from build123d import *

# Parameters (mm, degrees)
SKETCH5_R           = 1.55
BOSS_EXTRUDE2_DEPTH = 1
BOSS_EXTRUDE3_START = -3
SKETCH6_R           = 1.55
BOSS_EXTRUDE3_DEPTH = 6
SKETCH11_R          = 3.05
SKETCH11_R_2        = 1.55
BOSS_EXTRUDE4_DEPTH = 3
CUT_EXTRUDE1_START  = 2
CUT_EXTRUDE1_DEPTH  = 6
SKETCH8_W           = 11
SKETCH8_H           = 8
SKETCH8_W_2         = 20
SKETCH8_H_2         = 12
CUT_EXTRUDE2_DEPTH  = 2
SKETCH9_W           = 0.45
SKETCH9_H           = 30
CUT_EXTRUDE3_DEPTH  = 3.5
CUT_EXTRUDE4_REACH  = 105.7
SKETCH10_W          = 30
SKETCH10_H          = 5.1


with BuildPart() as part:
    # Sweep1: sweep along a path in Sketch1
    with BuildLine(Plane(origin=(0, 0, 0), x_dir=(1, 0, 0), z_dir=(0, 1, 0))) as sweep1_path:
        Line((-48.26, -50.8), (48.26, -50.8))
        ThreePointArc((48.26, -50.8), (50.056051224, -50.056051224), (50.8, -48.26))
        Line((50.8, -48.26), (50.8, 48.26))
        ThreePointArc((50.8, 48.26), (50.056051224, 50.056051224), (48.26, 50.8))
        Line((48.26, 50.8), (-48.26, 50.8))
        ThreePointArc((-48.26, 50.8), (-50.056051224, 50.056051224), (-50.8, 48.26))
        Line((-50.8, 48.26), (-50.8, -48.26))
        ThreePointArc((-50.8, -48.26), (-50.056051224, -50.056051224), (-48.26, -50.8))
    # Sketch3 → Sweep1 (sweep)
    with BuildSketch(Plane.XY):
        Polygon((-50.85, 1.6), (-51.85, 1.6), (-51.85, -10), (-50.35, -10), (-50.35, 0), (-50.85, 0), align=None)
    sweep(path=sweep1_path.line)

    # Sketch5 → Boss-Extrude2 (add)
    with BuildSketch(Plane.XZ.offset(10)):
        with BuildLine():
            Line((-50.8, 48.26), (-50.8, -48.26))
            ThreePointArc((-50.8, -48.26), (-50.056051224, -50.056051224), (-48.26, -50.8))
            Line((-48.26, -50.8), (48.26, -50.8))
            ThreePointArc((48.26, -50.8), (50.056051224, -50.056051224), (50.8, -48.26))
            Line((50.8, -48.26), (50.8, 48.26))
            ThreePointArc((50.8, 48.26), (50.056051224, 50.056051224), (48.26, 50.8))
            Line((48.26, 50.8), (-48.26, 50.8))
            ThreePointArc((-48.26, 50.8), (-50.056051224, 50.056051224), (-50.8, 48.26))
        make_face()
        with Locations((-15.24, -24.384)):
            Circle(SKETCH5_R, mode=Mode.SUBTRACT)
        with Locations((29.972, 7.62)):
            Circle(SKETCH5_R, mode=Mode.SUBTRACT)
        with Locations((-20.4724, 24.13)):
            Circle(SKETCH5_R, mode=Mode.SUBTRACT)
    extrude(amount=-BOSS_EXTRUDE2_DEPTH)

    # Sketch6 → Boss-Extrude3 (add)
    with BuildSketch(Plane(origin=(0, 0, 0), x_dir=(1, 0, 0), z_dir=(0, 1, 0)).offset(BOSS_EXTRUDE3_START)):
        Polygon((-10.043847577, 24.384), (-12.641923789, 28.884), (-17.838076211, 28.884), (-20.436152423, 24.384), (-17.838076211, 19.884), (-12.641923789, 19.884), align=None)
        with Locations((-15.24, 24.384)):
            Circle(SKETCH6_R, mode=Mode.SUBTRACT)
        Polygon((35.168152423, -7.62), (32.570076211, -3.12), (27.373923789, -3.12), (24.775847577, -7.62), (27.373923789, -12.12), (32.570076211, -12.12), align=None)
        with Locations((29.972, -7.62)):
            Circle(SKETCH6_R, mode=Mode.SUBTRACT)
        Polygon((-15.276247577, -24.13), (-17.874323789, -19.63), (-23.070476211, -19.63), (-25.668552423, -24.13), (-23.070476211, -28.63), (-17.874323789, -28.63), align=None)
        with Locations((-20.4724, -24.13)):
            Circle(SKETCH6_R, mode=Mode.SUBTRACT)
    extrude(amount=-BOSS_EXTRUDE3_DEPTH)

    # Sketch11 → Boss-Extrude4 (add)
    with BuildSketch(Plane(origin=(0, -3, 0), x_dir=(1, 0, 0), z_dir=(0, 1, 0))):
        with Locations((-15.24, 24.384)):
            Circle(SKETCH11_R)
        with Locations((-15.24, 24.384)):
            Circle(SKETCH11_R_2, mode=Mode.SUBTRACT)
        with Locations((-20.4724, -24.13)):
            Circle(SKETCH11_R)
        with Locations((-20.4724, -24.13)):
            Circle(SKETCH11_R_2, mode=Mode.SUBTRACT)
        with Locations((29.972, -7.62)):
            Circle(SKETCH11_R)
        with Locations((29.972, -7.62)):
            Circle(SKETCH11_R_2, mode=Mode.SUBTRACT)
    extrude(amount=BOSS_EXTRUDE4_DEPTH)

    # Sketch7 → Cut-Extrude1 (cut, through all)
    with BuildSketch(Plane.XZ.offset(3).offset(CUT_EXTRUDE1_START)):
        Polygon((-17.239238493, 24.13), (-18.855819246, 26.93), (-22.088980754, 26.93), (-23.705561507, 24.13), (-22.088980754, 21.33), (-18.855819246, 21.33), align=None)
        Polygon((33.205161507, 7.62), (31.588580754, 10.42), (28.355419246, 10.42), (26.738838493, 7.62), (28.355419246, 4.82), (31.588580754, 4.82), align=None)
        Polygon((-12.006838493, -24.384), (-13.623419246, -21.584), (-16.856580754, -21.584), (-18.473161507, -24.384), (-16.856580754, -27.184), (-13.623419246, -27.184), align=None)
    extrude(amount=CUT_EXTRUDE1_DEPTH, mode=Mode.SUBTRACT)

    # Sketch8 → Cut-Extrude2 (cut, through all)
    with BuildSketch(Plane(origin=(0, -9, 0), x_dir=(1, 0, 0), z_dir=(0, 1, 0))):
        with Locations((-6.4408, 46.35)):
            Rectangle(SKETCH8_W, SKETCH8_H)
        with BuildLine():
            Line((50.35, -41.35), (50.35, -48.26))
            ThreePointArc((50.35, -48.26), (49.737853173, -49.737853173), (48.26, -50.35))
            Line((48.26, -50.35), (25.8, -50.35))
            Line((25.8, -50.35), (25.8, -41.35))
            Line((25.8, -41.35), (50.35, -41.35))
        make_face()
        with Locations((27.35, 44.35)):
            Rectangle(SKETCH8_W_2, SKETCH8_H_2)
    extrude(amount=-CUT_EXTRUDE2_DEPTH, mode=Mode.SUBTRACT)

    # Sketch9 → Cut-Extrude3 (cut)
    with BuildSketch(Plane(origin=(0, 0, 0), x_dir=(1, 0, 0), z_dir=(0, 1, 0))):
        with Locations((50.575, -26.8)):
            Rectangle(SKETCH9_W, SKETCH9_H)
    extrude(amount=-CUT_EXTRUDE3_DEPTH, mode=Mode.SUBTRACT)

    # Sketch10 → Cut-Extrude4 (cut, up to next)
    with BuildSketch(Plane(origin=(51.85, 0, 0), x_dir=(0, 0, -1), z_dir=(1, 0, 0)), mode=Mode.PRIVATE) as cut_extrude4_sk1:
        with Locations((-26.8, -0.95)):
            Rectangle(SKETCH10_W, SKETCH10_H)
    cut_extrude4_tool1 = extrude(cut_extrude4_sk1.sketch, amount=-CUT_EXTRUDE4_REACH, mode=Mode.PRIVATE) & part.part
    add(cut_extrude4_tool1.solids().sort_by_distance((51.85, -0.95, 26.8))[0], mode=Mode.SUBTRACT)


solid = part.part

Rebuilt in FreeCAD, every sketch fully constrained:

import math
import FreeCAD as App
import Part
import Sketcher
Q = App.Units.Quantity


def add_polygon(sketch, points):
    """Adds a closed chain of lines whose ends are joined by coincident constraints."""
    first, n = sketch.GeometryCount, len(points)
    for a, b in zip(points, points[1:] + points[:1]):
        sketch.addGeometry(Part.LineSegment(App.Vector(*a, 0), App.Vector(*b, 0)), False)
    for i in range(n):
        sketch.addConstraint(Sketcher.Constraint("Coincident", first + i, 2, first + (i + 1) % n, 1))

doc = App.newDocument("Part")
body = doc.addObject("PartDesign::Body", "Body")

# Sketch on XY plane
sketch1 = body.newObject("Sketcher::SketchObject", "Sketch")
sketch1.AttachmentSupport = (doc.getObject("XY_Plane"), [""])
sketch1.MapMode = "FlatFace"
add_polygon(sketch1, [(-50.9, 1.6), (-51.9, 1.6), (-51.9, -10), (-50.4, -10), (-50.4, 0), (-50.9, 0)])  # lines 0-5
sketch1.addConstraint([
    Sketcher.Constraint("Horizontal", 0),
    Sketcher.Constraint("Vertical", 1),
    Sketcher.Constraint("Horizontal", 2),
    Sketcher.Constraint("Vertical", 3),
    Sketcher.Constraint("Horizontal", 4),
    Sketcher.Constraint("Vertical", 5),
    Sketcher.Constraint("PointOnObject", 3, 2, -1),
    Sketcher.Constraint("DistanceX", 0, 2, 0, 1, 1.0),
    Sketcher.Constraint("DistanceY", 3, 1, 3, 2, 10.0),
    Sketcher.Constraint("DistanceX", 2, 1, 2, 2, 1.5),
    Sketcher.Constraint("DistanceY", 1, 2, 1, 1, 11.6),
    Sketcher.Constraint("DistanceX", 0, 2, -1, 1, 51.85),
])

# Sketch on XZ plane
sketch2 = body.newObject("Sketcher::SketchObject", "Sketch001")
sketch2.AttachmentSupport = (doc.getObject("XZ_Plane"), [""])
sketch2.MapMode = "FlatFace"
sketch2.addGeometry([
    Part.LineSegment(App.Vector(-48.3, 50.8, 0), App.Vector(48.3, 50.8, 0)),  # 0
    Part.ArcOfCircle(Part.Circle(App.Vector(48.3, 48.3, 0), App.Vector(0, 0, 1), 2.5), math.radians(0), math.radians(90)),  # 1
    Part.LineSegment(App.Vector(50.8, 48.3, 0), App.Vector(50.8, -48.3, 0)),  # 2
    Part.ArcOfCircle(Part.Circle(App.Vector(48.3, -48.3, 0), App.Vector(0, 0, 1), 2.5), math.radians(-90), math.radians(0)),  # 3
    Part.LineSegment(App.Vector(48.3, -50.8, 0), App.Vector(-48.3, -50.8, 0)),  # 4
    Part.ArcOfCircle(Part.Circle(App.Vector(-48.3, -48.3, 0), App.Vector(0, 0, 1), 2.5), math.radians(-180), math.radians(-90)),  # 5
    Part.LineSegment(App.Vector(-50.8, -48.3, 0), App.Vector(-50.8, 48.3, 0)),  # 6
    Part.ArcOfCircle(Part.Circle(App.Vector(-48.3, 48.3, 0), App.Vector(0, 0, 1), 2.5), math.radians(90), math.radians(180)),  # 7
], False)
sketch2.addConstraint([
    Sketcher.Constraint("Tangent", 0, 2, 1, 2),
    Sketcher.Constraint("Tangent", 1, 1, 2, 1),
    Sketcher.Constraint("Tangent", 2, 2, 3, 2),
    Sketcher.Constraint("Tangent", 3, 1, 4, 1),
    Sketcher.Constraint("Tangent", 4, 2, 5, 2),
    Sketcher.Constraint("Tangent", 5, 1, 6, 1),
    Sketcher.Constraint("Tangent", 6, 2, 7, 2),
    Sketcher.Constraint("Tangent", 7, 1, 0, 1),
    Sketcher.Constraint("Horizontal", 0),
    Sketcher.Constraint("Vertical", 2),
    Sketcher.Constraint("Horizontal", 4),
    Sketcher.Constraint("Vertical", 6),
    Sketcher.Constraint("Equal", 1, 3),
    Sketcher.Constraint("Equal", 3, 5),
    Sketcher.Constraint("Equal", 5, 7),
    Sketcher.Constraint("Symmetric", 1, 3, 5, 3, -1, 1),
    Sketcher.Constraint("Equal", 4, 2),
    Sketcher.Constraint("Radius", 1, 2.54),
    Sketcher.Constraint("DistanceX", 0, 1, 0, 2, 96.52),
])
doc.recompute()

additivepipe = body.newObject("PartDesign::AdditivePipe", "AdditivePipe")
additivepipe.Profile = sketch1
additivepipe.Spine = (sketch2, ["Edge1", "Edge2", "Edge3", "Edge4", "Edge5", "Edge6", "Edge7", "Edge8"])

# Sketch on XZ plane
sketch3 = body.newObject("Sketcher::SketchObject", "Sketch002")
sketch3.AttachmentSupport = (doc.getObject("XZ_Plane"), [""])
sketch3.MapMode = "FlatFace"
sketch3.AttachmentOffset = App.Placement(App.Vector(0, 0, 10), App.Rotation())
sketch3.addGeometry([
    Part.LineSegment(App.Vector(-50.8, 48.3, 0), App.Vector(-50.8, -48.3, 0)),  # 0
    Part.ArcOfCircle(Part.Circle(App.Vector(-48.3, -48.3, 0), App.Vector(0, 0, 1), 2.5), math.radians(-180), math.radians(-90)),  # 1
    Part.LineSegment(App.Vector(-48.3, -50.8, 0), App.Vector(48.3, -50.8, 0)),  # 2
    Part.ArcOfCircle(Part.Circle(App.Vector(48.3, -48.3, 0), App.Vector(0, 0, 1), 2.5), math.radians(-90), math.radians(0)),  # 3
    Part.LineSegment(App.Vector(50.8, -48.3, 0), App.Vector(50.8, 48.3, 0)),  # 4
    Part.ArcOfCircle(Part.Circle(App.Vector(48.3, 48.3, 0), App.Vector(0, 0, 1), 2.5), math.radians(0), math.radians(90)),  # 5
    Part.LineSegment(App.Vector(48.3, 50.8, 0), App.Vector(-48.3, 50.8, 0)),  # 6
    Part.ArcOfCircle(Part.Circle(App.Vector(-48.3, 48.3, 0), App.Vector(0, 0, 1), 2.5), math.radians(90), math.radians(180)),  # 7
    Part.Circle(App.Vector(-15.2, -24.4, 0), App.Vector(0, 0, 1), 1.6),  # 8
    Part.Circle(App.Vector(-20.5, 24.1, 0), App.Vector(0, 0, 1), 1.6),  # 9
    Part.Circle(App.Vector(30, 7.6, 0), App.Vector(0, 0, 1), 1.6),  # 10
], False)
sketch3.addConstraint([
    Sketcher.Constraint("Tangent", 0, 2, 1, 1),
    Sketcher.Constraint("Tangent", 1, 2, 2, 1),
    Sketcher.Constraint("Tangent", 2, 2, 3, 1),
    Sketcher.Constraint("Tangent", 3, 2, 4, 1),
    Sketcher.Constraint("Tangent", 4, 2, 5, 1),
    Sketcher.Constraint("Tangent", 5, 2, 6, 1),
    Sketcher.Constraint("Tangent", 6, 2, 7, 1),
    Sketcher.Constraint("Tangent", 7, 2, 0, 1),
    Sketcher.Constraint("Vertical", 0),
    Sketcher.Constraint("Horizontal", 2),
    Sketcher.Constraint("Vertical", 4),
    Sketcher.Constraint("Horizontal", 6),
    Sketcher.Constraint("Equal", 1, 3),
    Sketcher.Constraint("Equal", 3, 5),
    Sketcher.Constraint("Equal", 5, 7),
    Sketcher.Constraint("Equal", 8, 9),
    Sketcher.Constraint("Equal", 9, 10),
    Sketcher.Constraint("Symmetric", 1, 3, 5, 3, -1, 1),
    Sketcher.Constraint("Equal", 6, 0),
    Sketcher.Constraint("Diameter", 8, 3.1),
    Sketcher.Constraint("Radius", 1, 2.54),
    Sketcher.Constraint("DistanceX", 2, 1, 2, 2, 96.52),
    Sketcher.Constraint("DistanceX", 8, 3, 3, 3, 63.5),
    Sketcher.Constraint("DistanceY", -1, 1, 9, 3, 24.13),
    Sketcher.Constraint("DistanceY", -1, 1, 10, 3, 7.62),
    Sketcher.Constraint("DistanceY", 8, 3, -1, 1, 24.384),
    Sketcher.Constraint("DistanceX", -1, 1, 10, 3, 29.972),
    Sketcher.Constraint("DistanceX", 9, 3, -1, 1, 20.4724),
])
pad1 = body.newObject("PartDesign::Pad", "Pad")
pad1.Profile = sketch3
pad1.Length = 1
pad1.Reversed = True

# Sketch on XZ plane
sketch4 = body.newObject("Sketcher::SketchObject", "Sketch003")
sketch4.AttachmentSupport = (doc.getObject("XZ_Plane"), [""])
sketch4.MapMode = "FlatFace"
sketch4.AttachmentOffset = App.Placement(App.Vector(0, 0, 3), App.Rotation())
add_polygon(sketch4, [(-10, -24.4), (-12.6, -28.9), (-17.8, -28.9), (-20.4, -24.4), (-17.8, -19.9), (-12.6, -19.9)])  # lines 0-5
sketch4.addGeometry(Part.Circle(App.Vector(-15.2, -24.4, 0), App.Vector(0, 0, 1), 1.6), False)  # 6
add_polygon(sketch4, [(35.2, 7.6), (32.6, 3.1), (27.4, 3.1), (24.8, 7.6), (27.4, 12.1), (32.6, 12.1)])  # lines 7-12
sketch4.addGeometry(Part.Circle(App.Vector(30, 7.6, 0), App.Vector(0, 0, 1), 1.6), False)  # 13
add_polygon(sketch4, [(-15.3, 24.1), (-17.9, 19.6), (-23.1, 19.6), (-25.7, 24.1), (-23.1, 28.6), (-17.9, 28.6)])  # lines 14-19
sketch4.addGeometry(Part.Circle(App.Vector(-20.5, 24.1, 0), App.Vector(0, 0, 1), 1.6), False)  # 20
sketch4.addConstraint([
    Sketcher.Constraint("Horizontal", 1),
    Sketcher.Constraint("Horizontal", 4),
    Sketcher.Constraint("Horizontal", 8),
    Sketcher.Constraint("Horizontal", 11),
    Sketcher.Constraint("Horizontal", 15),
    Sketcher.Constraint("Horizontal", 18),
    Sketcher.Constraint("Equal", 6, 13),
    Sketcher.Constraint("Equal", 13, 20),
    Sketcher.Constraint("Parallel", 0, 3),
    Sketcher.Constraint("Parallel", 2, 5),
    Sketcher.Constraint("Parallel", 3, 7),
    Sketcher.Constraint("Parallel", 5, 9),
    Sketcher.Constraint("Parallel", 7, 10),
    Sketcher.Constraint("Parallel", 9, 12),
    Sketcher.Constraint("Parallel", 10, 14),
    Sketcher.Constraint("Parallel", 12, 16),
    Sketcher.Constraint("Parallel", 14, 17),
    Sketcher.Constraint("Parallel", 16, 19),
    Sketcher.Constraint("Horizontal", 6, 3, 2, 2),
    Sketcher.Constraint("Horizontal", 2, 2, 5, 2),
    Sketcher.Constraint("Horizontal", 13, 3, 9, 2),
    Sketcher.Constraint("Horizontal", 9, 2, 12, 2),
    Sketcher.Constraint("Horizontal", 20, 3, 16, 2),
    Sketcher.Constraint("Horizontal", 16, 2, 19, 2),
    Sketcher.Constraint("Vertical", 1, 2, 3, 2),
    Sketcher.Constraint("Vertical", 0, 2, 4, 2),
    Sketcher.Constraint("Vertical", 8, 2, 10, 2),
    Sketcher.Constraint("Vertical", 15, 2, 17, 2),
    Sketcher.Constraint("Equal", 4, 8),
    Sketcher.Constraint("Equal", 11, 15),
    Sketcher.Constraint("Equal", 5, 7),
    Sketcher.Constraint("Equal", 12, 14),
    Sketcher.Constraint("Diameter", 6, 3.1),
    Sketcher.Constraint("Angle", 0, Q("-120 deg")),
    Sketcher.Constraint("DistanceY", 1, 2, 3, 2, 9.0),
    Sketcher.Constraint("DistanceX", 6, 3, -1, 1, 15.24),
    Sketcher.Constraint("DistanceY", -1, 1, 13, 3, 7.62),
    Sketcher.Constraint("DistanceY", -1, 1, 20, 3, 24.13),
    Sketcher.Constraint("DistanceY", 6, 3, -1, 1, 24.384),
    Sketcher.Constraint("DistanceX", -1, 1, 13, 3, 29.972),
    Sketcher.Constraint("DistanceX", 4, 2, 7, 2, 45.212),
    Sketcher.Constraint("DistanceX", 20, 3, -1, 1, 20.4724),
    Sketcher.Constraint("DistanceX", 14, 2, 4, 2, 5.2324),
    Sketcher.Constraint("DistanceX", 1, 2, 1, 1, 5.196152),
    Sketcher.Constraint("DistanceX", 0, 2, -1, 1, 12.641924),
])
pad2 = body.newObject("PartDesign::Pad", "Pad001")
pad2.Profile = sketch4
pad2.Length = 6

# Sketch on XZ plane
sketch5 = body.newObject("Sketcher::SketchObject", "Sketch004")
sketch5.AttachmentSupport = (doc.getObject("XZ_Plane"), [""])
sketch5.MapMode = "FlatFace"
sketch5.AttachmentOffset = App.Placement(App.Vector(0, 0, 3), App.Rotation())
sketch5.addGeometry([
    Part.Circle(App.Vector(-15.2, -24.4, 0), App.Vector(0, 0, 1), 3),  # 0
    Part.Circle(App.Vector(-15.2, -24.4, 0), App.Vector(0, 0, 1), 1.6),  # 1
    Part.Circle(App.Vector(-20.5, 24.1, 0), App.Vector(0, 0, 1), 3),  # 2
    Part.Circle(App.Vector(-20.5, 24.1, 0), App.Vector(0, 0, 1), 1.6),  # 3
    Part.Circle(App.Vector(30, 7.6, 0), App.Vector(0, 0, 1), 3),  # 4
    Part.Circle(App.Vector(30, 7.6, 0), App.Vector(0, 0, 1), 1.6),  # 5
], False)
sketch5.addConstraint([
    Sketcher.Constraint("Coincident", 1, 3, 0, 3),
    Sketcher.Constraint("Coincident", 3, 3, 2, 3),
    Sketcher.Constraint("Coincident", 5, 3, 4, 3),
    Sketcher.Constraint("Equal", 0, 2),
    Sketcher.Constraint("Equal", 1, 3),
    Sketcher.Constraint("Equal", 2, 4),
    Sketcher.Constraint("Equal", 3, 5),
    Sketcher.Constraint("Diameter", 0, 6.1),
    Sketcher.Constraint("Diameter", 1, 3.1),
    Sketcher.Constraint("DistanceX", 0, 3, -1, 1, 15.24),
    Sketcher.Constraint("DistanceY", -1, 1, 2, 3, 24.13),
    Sketcher.Constraint("DistanceY", -1, 1, 4, 3, 7.62),
    Sketcher.Constraint("DistanceY", 0, 3, -1, 1, 24.384),
    Sketcher.Constraint("DistanceX", -1, 1, 4, 3, 29.972),
    Sketcher.Constraint("DistanceX", 2, 3, -1, 1, 20.4724),
])
pad3 = body.newObject("PartDesign::Pad", "Pad002")
pad3.Profile = sketch5
pad3.Length = 3
pad3.Reversed = True

# Sketch on XZ plane
sketch6 = body.newObject("Sketcher::SketchObject", "Sketch005")
sketch6.AttachmentSupport = (doc.getObject("XZ_Plane"), [""])
sketch6.MapMode = "FlatFace"
sketch6.AttachmentOffset = App.Placement(App.Vector(0, 0, 5), App.Rotation())
add_polygon(sketch6, [(-17.2, 24.1), (-18.9, 26.9), (-22.1, 26.9), (-23.7, 24.1), (-22.1, 21.3), (-18.9, 21.3)])  # lines 0-5
add_polygon(sketch6, [(33.2, 7.6), (31.6, 10.4), (28.4, 10.4), (26.7, 7.6), (28.4, 4.8), (31.6, 4.8)])  # lines 6-11
add_polygon(sketch6, [(-12, -24.4), (-13.6, -21.6), (-16.9, -21.6), (-18.5, -24.4), (-16.9, -27.2), (-13.6, -27.2)])  # lines 12-17
sketch6.addConstraint([
    Sketcher.Constraint("Horizontal", 1),
    Sketcher.Constraint("Horizontal", 4),
    Sketcher.Constraint("Horizontal", 7),
    Sketcher.Constraint("Horizontal", 10),
    Sketcher.Constraint("Horizontal", 13),
    Sketcher.Constraint("Horizontal", 16),
    Sketcher.Constraint("Parallel", 0, 3),
    Sketcher.Constraint("Parallel", 2, 5),
    Sketcher.Constraint("Parallel", 3, 6),
    Sketcher.Constraint("Parallel", 5, 8),
    Sketcher.Constraint("Parallel", 6, 9),
    Sketcher.Constraint("Parallel", 8, 11),
    Sketcher.Constraint("Parallel", 9, 12),
    Sketcher.Constraint("Parallel", 11, 14),
    Sketcher.Constraint("Parallel", 12, 15),
    Sketcher.Constraint("Parallel", 14, 17),
    Sketcher.Constraint("Horizontal", 2, 2, 5, 2),
    Sketcher.Constraint("Horizontal", 8, 2, 11, 2),
    Sketcher.Constraint("Horizontal", 14, 2, 17, 2),
    Sketcher.Constraint("Vertical", 1, 2, 3, 2),
    Sketcher.Constraint("Vertical", 0, 2, 4, 2),
    Sketcher.Constraint("Vertical", 7, 2, 9, 2),
    Sketcher.Constraint("Vertical", 13, 2, 15, 2),
    Sketcher.Constraint("Equal", 4, 7),
    Sketcher.Constraint("Equal", 10, 13),
    Sketcher.Constraint("Equal", 5, 6),
    Sketcher.Constraint("Equal", 11, 12),
    Sketcher.Constraint("Angle", 0, Q("120 deg")),
    Sketcher.Constraint("DistanceY", 2, 2, 1, 2, 2.8),
    Sketcher.Constraint("DistanceY", -1, 1, 0, 2, 26.93),
    Sketcher.Constraint("DistanceY", -1, 1, 6, 2, 10.42),
    Sketcher.Constraint("DistanceY", 12, 2, -1, 1, 21.584),
    Sketcher.Constraint("DistanceX", 1, 2, 1, 1, 3.233162),
    Sketcher.Constraint("DistanceX", 4, 2, 6, 2, 50.4444),
    Sketcher.Constraint("DistanceX", 4, 2, 12, 2, 5.2324),
    Sketcher.Constraint("DistanceX", 0, 2, -1, 1, 18.855819),
])
pocket1 = body.newObject("PartDesign::Pocket", "Pocket")
pocket1.Profile = sketch6
pocket1.Type = "ThroughAll"
pocket1.Reversed = True

# Sketch on XZ plane
sketch7 = body.newObject("Sketcher::SketchObject", "Sketch006")
sketch7.AttachmentSupport = (doc.getObject("XZ_Plane"), [""])
sketch7.MapMode = "FlatFace"
sketch7.AttachmentOffset = App.Placement(App.Vector(0, 0, 9), App.Rotation())
add_polygon(sketch7, [(-11.9, -50.4), (-11.9, -42.4), (-0.9, -42.4), (-0.9, -50.4)])  # lines 0-3
sketch7.addGeometry(Part.LineSegment(App.Vector(50.4, 48.3, 0), App.Vector(50.4, 41.4, 0)), False)  # 4
sketch7.addGeometry(Part.LineSegment(App.Vector(50.4, 41.4, 0), App.Vector(25.8, 41.4, 0)), False)  # 5
sketch7.addGeometry(Part.LineSegment(App.Vector(25.8, 41.4, 0), App.Vector(25.8, 50.4, 0)), False)  # 6
sketch7.addGeometry(Part.LineSegment(App.Vector(25.8, 50.4, 0), App.Vector(48.3, 50.4, 0)), False)  # 7
sketch7.addGeometry(Part.ArcOfCircle(Part.Circle(App.Vector(48.3, 48.3, 0), App.Vector(0, 0, 1), 2.1), math.radians(0), math.radians(90)), False)  # 8
add_polygon(sketch7, [(17.4, -50.4), (17.4, -38.4), (37.4, -38.4), (37.4, -50.4)])  # lines 9-12
sketch7.addConstraint([
    Sketcher.Constraint("Coincident", 4, 2, 5, 1),
    Sketcher.Constraint("Coincident", 5, 2, 6, 1),
    Sketcher.Constraint("Coincident", 6, 2, 7, 1),
    Sketcher.Constraint("Tangent", 7, 2, 8, 2),
    Sketcher.Constraint("Tangent", 8, 1, 4, 1),
    Sketcher.Constraint("Vertical", 0),
    Sketcher.Constraint("Horizontal", 1),
    Sketcher.Constraint("Vertical", 2),
    Sketcher.Constraint("Horizontal", 3),
    Sketcher.Constraint("Vertical", 4),
    Sketcher.Constraint("Horizontal", 5),
    Sketcher.Constraint("Vertical", 6),
    Sketcher.Constraint("Horizontal", 7),
    Sketcher.Constraint("Vertical", 9),
    Sketcher.Constraint("Horizontal", 10),
    Sketcher.Constraint("Vertical", 11),
    Sketcher.Constraint("Horizontal", 12),
    Sketcher.Constraint("Horizontal", 3, 2, 11, 2),
    Sketcher.Constraint("DistanceX", 1, 1, 1, 2, 11.0),
    Sketcher.Constraint("DistanceX", 10, 1, 10, 2, 20.0),
    Sketcher.Constraint("DistanceY", 0, 1, 0, 2, 8.0),
    Sketcher.Constraint("DistanceY", 6, 1, 6, 2, 9.0),
    Sketcher.Constraint("DistanceY", 9, 1, 9, 2, 12.0),
    Sketcher.Constraint("Radius", 8, 2.09),
    Sketcher.Constraint("DistanceX", 5, 2, 5, 1, 24.55),
    Sketcher.Constraint("DistanceX", -1, 1, 5, 2, 25.8),
    Sketcher.Constraint("DistanceY", 1, 2, 4, 2, 83.7),
    Sketcher.Constraint("DistanceY", -1, 1, 8, 3, 48.26),
    Sketcher.Constraint("DistanceX", -1, 1, 9, 2, 17.35),
    Sketcher.Constraint("DistanceX", 0, 2, -1, 1, 11.9408),
])
pocket2 = body.newObject("PartDesign::Pocket", "Pocket001")
pocket2.Profile = sketch7
pocket2.Type = "ThroughAll"
pocket2.Reversed = True

# Sketch on XZ plane
sketch8 = body.newObject("Sketcher::SketchObject", "Sketch007")
sketch8.AttachmentSupport = (doc.getObject("XZ_Plane"), [""])
sketch8.MapMode = "FlatFace"
add_polygon(sketch8, [(50.35, 11.8), (50.35, 41.8), (50.8, 41.8), (50.8, 11.8)])  # lines 0-3
sketch8.addConstraint([
    Sketcher.Constraint("Vertical", 0),
    Sketcher.Constraint("Horizontal", 1),
    Sketcher.Constraint("Vertical", 2),
    Sketcher.Constraint("Horizontal", 3),
    Sketcher.Constraint("DistanceY", 0, 1, 0, 2, 30.0),
    Sketcher.Constraint("DistanceX", 1, 1, 1, 2, 0.45),
    Sketcher.Constraint("DistanceY", -1, 1, 0, 2, 41.8),
    Sketcher.Constraint("DistanceX", -1, 1, 1, 2, 50.8),
])
pocket3 = body.newObject("PartDesign::Pocket", "Pocket002")
pocket3.Profile = sketch8
pocket3.Length = 3.5
pocket3.Reversed = True

# Sketch on YZ plane
sketch9 = body.newObject("Sketcher::SketchObject", "Sketch008")
sketch9.AttachmentSupport = (doc.getObject("YZ_Plane"), [""])
sketch9.MapMode = "FlatFace"
sketch9.AttachmentOffset = App.Placement(App.Vector(0, 0, 51.85), App.Rotation())
add_polygon(sketch9, [(2, 42), (-4, 42), (-4, 12), (2, 12)])  # lines 0-3
sketch9.addConstraint([
    Sketcher.Constraint("Horizontal", 0),
    Sketcher.Constraint("Vertical", 1),
    Sketcher.Constraint("Horizontal", 2),
    Sketcher.Constraint("Vertical", 3),
    Sketcher.Constraint("DistanceY", 1, 2, 1, 1, 30.0),
    Sketcher.Constraint("DistanceX", 0, 2, 0, 1, 5.1),
    Sketcher.Constraint("DistanceX", 0, 2, -1, 1, 3.5),
    Sketcher.Constraint("DistanceY", -1, 1, 0, 2, 41.8),
])
pocket4 = body.newObject("PartDesign::Pocket", "Pocket003")
pocket4.Profile = sketch9
pocket4.Type = "UpToFirst"

doc.recompute()
